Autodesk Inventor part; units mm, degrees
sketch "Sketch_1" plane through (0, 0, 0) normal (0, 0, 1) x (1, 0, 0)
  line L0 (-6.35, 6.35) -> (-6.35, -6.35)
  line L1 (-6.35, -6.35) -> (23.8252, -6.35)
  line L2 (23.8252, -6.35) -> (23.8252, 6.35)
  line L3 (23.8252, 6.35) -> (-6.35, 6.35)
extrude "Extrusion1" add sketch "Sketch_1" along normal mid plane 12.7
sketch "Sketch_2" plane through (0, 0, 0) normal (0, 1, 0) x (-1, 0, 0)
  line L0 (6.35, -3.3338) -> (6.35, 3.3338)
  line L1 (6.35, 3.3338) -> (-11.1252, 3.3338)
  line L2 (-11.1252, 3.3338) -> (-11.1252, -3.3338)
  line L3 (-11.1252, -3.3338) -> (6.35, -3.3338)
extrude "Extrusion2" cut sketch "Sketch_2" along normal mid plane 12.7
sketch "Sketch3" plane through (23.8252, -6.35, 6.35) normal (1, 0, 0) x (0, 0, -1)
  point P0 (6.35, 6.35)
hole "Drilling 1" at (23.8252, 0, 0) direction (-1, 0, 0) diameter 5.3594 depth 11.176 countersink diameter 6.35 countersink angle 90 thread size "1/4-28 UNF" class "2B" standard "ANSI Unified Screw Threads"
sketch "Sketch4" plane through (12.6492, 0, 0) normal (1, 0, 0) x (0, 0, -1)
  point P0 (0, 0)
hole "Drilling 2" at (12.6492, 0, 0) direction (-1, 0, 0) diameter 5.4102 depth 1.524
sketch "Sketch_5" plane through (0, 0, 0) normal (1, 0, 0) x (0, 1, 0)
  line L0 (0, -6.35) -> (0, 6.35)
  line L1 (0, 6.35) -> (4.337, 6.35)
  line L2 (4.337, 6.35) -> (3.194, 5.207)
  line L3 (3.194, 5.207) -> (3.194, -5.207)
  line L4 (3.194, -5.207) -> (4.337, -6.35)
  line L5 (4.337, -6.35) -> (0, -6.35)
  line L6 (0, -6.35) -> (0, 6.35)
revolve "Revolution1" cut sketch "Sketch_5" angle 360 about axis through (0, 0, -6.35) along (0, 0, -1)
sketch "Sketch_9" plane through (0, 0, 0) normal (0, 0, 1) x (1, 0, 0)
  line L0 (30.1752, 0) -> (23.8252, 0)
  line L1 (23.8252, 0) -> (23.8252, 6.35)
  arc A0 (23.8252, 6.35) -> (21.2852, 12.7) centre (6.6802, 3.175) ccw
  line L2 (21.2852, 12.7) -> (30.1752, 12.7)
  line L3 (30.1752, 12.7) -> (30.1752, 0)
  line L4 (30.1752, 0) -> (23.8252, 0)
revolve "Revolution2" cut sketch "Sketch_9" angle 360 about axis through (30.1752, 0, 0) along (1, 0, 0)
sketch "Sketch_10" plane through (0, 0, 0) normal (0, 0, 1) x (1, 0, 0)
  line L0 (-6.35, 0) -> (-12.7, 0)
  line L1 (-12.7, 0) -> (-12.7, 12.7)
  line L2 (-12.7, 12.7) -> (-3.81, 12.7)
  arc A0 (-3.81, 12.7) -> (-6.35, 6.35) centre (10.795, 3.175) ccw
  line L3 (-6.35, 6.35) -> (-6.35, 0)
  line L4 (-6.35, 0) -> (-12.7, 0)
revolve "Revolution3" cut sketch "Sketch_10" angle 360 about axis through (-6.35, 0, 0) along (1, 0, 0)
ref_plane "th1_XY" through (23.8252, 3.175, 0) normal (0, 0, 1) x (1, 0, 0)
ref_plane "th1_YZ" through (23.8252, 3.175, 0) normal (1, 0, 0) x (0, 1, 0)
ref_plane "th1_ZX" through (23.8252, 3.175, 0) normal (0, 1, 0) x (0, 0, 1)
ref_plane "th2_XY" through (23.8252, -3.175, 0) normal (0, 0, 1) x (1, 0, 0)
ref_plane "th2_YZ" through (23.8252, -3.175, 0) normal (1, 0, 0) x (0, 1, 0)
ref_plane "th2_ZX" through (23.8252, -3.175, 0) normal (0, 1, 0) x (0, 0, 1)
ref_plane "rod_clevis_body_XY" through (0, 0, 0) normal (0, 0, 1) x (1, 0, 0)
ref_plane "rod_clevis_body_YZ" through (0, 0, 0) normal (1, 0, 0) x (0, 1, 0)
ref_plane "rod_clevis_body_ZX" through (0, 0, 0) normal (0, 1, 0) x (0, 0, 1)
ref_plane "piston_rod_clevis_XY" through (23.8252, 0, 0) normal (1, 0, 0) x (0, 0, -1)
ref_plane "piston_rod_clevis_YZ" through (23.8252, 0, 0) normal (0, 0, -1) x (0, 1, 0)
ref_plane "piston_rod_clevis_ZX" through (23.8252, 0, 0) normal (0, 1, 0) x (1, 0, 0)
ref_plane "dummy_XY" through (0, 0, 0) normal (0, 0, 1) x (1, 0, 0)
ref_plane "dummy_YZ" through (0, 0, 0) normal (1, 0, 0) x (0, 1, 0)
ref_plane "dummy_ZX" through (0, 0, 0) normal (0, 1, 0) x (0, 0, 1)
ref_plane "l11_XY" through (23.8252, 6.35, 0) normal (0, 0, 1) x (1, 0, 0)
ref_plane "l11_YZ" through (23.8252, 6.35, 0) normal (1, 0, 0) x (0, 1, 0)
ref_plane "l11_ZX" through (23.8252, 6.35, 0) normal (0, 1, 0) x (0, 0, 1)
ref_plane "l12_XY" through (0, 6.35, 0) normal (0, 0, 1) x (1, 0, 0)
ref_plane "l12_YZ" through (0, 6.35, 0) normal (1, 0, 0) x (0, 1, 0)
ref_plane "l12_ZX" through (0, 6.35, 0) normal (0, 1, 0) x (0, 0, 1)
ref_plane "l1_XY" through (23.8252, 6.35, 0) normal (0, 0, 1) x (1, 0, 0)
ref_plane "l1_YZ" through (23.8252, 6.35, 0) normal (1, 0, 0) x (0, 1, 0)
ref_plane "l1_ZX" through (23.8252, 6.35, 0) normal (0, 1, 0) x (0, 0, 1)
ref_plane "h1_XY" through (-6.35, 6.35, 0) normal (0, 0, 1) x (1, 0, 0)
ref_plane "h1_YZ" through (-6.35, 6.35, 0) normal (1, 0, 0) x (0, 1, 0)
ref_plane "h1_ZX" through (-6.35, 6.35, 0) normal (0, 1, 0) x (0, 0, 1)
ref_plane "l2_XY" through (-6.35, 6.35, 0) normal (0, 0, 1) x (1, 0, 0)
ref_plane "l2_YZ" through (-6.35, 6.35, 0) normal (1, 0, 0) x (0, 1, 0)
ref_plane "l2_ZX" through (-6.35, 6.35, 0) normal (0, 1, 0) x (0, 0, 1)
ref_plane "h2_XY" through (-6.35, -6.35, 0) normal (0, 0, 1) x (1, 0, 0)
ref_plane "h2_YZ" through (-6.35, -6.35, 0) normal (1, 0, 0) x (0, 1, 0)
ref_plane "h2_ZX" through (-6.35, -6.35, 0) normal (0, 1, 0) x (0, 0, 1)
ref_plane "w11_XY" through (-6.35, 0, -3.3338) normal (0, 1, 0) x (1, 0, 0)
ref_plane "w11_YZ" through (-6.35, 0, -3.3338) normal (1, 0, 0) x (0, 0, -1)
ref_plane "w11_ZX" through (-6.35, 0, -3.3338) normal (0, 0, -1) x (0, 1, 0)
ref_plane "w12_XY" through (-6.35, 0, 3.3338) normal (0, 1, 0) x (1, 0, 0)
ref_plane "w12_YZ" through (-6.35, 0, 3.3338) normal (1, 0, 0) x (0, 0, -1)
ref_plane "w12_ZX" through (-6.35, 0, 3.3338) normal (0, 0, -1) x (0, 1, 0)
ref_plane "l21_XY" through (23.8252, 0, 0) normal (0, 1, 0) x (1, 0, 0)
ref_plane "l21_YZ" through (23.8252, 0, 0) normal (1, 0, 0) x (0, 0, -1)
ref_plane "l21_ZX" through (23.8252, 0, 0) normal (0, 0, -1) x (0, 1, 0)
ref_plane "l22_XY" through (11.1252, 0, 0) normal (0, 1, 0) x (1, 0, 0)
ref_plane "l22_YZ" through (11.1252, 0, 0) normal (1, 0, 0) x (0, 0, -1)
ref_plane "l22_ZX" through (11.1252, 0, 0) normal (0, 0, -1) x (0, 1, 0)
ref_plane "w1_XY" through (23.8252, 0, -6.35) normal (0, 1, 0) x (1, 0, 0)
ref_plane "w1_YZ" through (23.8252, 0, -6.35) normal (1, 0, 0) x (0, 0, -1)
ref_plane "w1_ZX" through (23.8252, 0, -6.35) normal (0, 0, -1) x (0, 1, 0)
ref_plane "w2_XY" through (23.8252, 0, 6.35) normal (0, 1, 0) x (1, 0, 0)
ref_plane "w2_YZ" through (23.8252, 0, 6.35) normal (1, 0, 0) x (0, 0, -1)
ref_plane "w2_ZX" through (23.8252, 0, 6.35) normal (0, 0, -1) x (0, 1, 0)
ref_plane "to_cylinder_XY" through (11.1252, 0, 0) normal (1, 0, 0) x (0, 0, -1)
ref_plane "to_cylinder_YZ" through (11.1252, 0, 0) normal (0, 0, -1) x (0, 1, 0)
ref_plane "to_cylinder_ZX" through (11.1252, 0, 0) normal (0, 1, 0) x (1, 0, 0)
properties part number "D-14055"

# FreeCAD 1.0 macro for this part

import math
import FreeCAD as App
import Part
import Sketcher
from FreeCAD import Vector
Q = App.Units.Quantity

doc = App.newDocument("Part")
body = doc.addObject("PartDesign::Body", "Body")

# Sketch on XY plane
sketch1 = doc.addObject("Sketcher::SketchObject", "Sketch")
body.addObject(sketch1)
sketch1.AttachmentSupport = (doc.XY_Plane, [""])
sketch1.MapMode = "FlatFace"
sketch1.addGeometry([
    Part.LineSegment(Vector(24, 6, 0), Vector(-6, 6, 0)),
    Part.LineSegment(Vector(-6, 6, 0), Vector(-6, -6, 0)),
    Part.LineSegment(Vector(-6, -6, 0), Vector(24, -6, 0)),
    Part.LineSegment(Vector(24, -6, 0), Vector(24, 6, 0)),
], False)
sketch1.addConstraint([
    Sketcher.Constraint("Coincident", 0, 2, 1, 1),
    Sketcher.Constraint("Coincident", 1, 2, 2, 1),
    Sketcher.Constraint("Coincident", 2, 2, 3, 1),
    Sketcher.Constraint("Coincident", 3, 2, 0, 1),
    Sketcher.Constraint("Horizontal", 0),
    Sketcher.Constraint("Vertical", 1),
    Sketcher.Constraint("Horizontal", 2),
    Sketcher.Constraint("Vertical", 3),
    Sketcher.Constraint("DistanceY", 1, 2, 1, 1, Q("0.5 in")),
    Sketcher.Constraint("DistanceX", 0, 2, 0, 1, Q("1.188 in")),
    Sketcher.Constraint("DistanceX", 0, 2, -1, 1, Q("0.25 in")),
    Sketcher.Constraint("DistanceY", -1, 1, 0, 2, Q("0.25 in")),
])
pad1 = doc.addObject("PartDesign::Pad", "Pad")
body.addObject(pad1)
pad1.Profile = sketch1
pad1.Length = Q("0.5 in")
pad1.Midplane = True

# Sketch on XZ plane
sketch2 = doc.addObject("Sketcher::SketchObject", "Sketch001")
body.addObject(sketch2)
sketch2.AttachmentSupport = (doc.XZ_Plane, [""])
sketch2.MapMode = "FlatFace"
sketch2.addGeometry([
    Part.LineSegment(Vector(11, -3, 0), Vector(-6, -3, 0)),
    Part.LineSegment(Vector(-6, -3, 0), Vector(-6, 3, 0)),
    Part.LineSegment(Vector(-6, 3, 0), Vector(11, 3, 0)),
    Part.LineSegment(Vector(11, 3, 0), Vector(11, -3, 0)),
], False)
sketch2.addConstraint([
    Sketcher.Constraint("Coincident", 0, 2, 1, 1),
    Sketcher.Constraint("Coincident", 1, 2, 2, 1),
    Sketcher.Constraint("Coincident", 2, 2, 3, 1),
    Sketcher.Constraint("Coincident", 3, 2, 0, 1),
    Sketcher.Constraint("Horizontal", 0),
    Sketcher.Constraint("Vertical", 1),
    Sketcher.Constraint("Horizontal", 2),
    Sketcher.Constraint("Vertical", 3),
    Sketcher.Constraint("DistanceX", 0, 2, 0, 1, Q("0.688 in")),
    Sketcher.Constraint("DistanceX", 0, 2, -1, 1, Q("0.25 in")),
    Sketcher.Constraint("DistanceY", 1, 1, 1, 2, Q("0.2625 in")),
    Sketcher.Constraint("DistanceY", 0, 2, -1, 1, 3.3338),
])
pocket1 = doc.addObject("PartDesign::Pocket", "Pocket")
body.addObject(pocket1)
pocket1.Profile = sketch2
pocket1.Length = Q("0.5 in")
pocket1.Midplane = True

# Sketch on YZ plane
sketch3 = doc.addObject("Sketcher::SketchObject", "Sketch002")
body.addObject(sketch3)
sketch3.AttachmentSupport = (doc.YZ_Plane, [""])
sketch3.MapMode = "FlatFace"
sketch3.AttachmentOffset = App.Placement(Vector(0, 0, 0.938 * 25.4), App.Rotation())
sketch3.addGeometry(Part.Circle(Vector(0, 0, 0), Vector(0, 0, 1), 2.7), False)
sketch3.addConstraint([
    Sketcher.Constraint("Coincident", 0, 3, -1, 1),
    Sketcher.Constraint("Diameter", 0, Q("0.211 in")),
])
doc.recompute()
hole = doc.addObject("PartDesign::Hole", "Hole")
body.addObject(hole)
hole.Profile = sketch3
hole.ThreadType = "None"
hole.Diameter = Q("0.211 in")
hole.DepthType = "Dimension"
hole.Depth = Q("0.44 in")
hole.DrillPoint = "Flat"
hole.HoleCutType = "Countersink"
hole.HoleCutDiameter = Q("0.25 in")
hole.HoleCutCountersinkAngle = 90

# Sketch on YZ plane
sketch4 = doc.addObject("Sketcher::SketchObject", "Sketch003")
body.addObject(sketch4)
sketch4.AttachmentSupport = (doc.YZ_Plane, [""])
sketch4.MapMode = "FlatFace"
sketch4.AttachmentOffset = App.Placement(Vector(0, 0, 0.498 * 25.4), App.Rotation())
sketch4.addGeometry(Part.Circle(Vector(0, 0, 0), Vector(0, 0, 1), 2.7), False)
sketch4.addConstraint([
    Sketcher.Constraint("Coincident", 0, 3, -1, 1),
    Sketcher.Constraint("Diameter", 0, Q("0.213 in")),
])
doc.recompute()
hole2 = doc.addObject("PartDesign::Hole", "Hole001")
body.addObject(hole2)
hole2.Profile = sketch4
hole2.ThreadType = "None"
hole2.Diameter = Q("0.213 in")
hole2.DepthType = "Dimension"
hole2.Depth = Q("0.06 in")
hole2.DrillPoint = "Flat"

# Sketch on YZ plane
sketch5 = doc.addObject("Sketcher::SketchObject", "Sketch004")
body.addObject(sketch5)
sketch5.AttachmentSupport = (doc.YZ_Plane, [""])
sketch5.MapMode = "FlatFace"
sketch5.addGeometry([
    Part.LineSegment(Vector(0, 6.3, 0), Vector(0, -6.3, 0)),  # 0
    Part.LineSegment(Vector(0, -6.3, 0), Vector(4.3, -6.3, 0)),  # 1
    Part.LineSegment(Vector(4.3, -6.3, 0), Vector(3.2, -5.2, 0)),  # 2
    Part.LineSegment(Vector(3.2, -5.2, 0), Vector(3.2, 5.2, 0)),  # 3
    Part.LineSegment(Vector(3.2, 5.2, 0), Vector(4.3, 6.3, 0)),  # 4
    Part.LineSegment(Vector(4.3, 6.3, 0), Vector(0, 6.3, 0)),  # 5
], False)
sketch5.addConstraint([
    Sketcher.Constraint("Coincident", 0, 2, 1, 1),
    Sketcher.Constraint("Coincident", 1, 2, 2, 1),
    Sketcher.Constraint("Coincident", 2, 2, 3, 1),
    Sketcher.Constraint("Coincident", 3, 2, 4, 1),
    Sketcher.Constraint("Coincident", 4, 2, 5, 1),
    Sketcher.Constraint("Coincident", 5, 2, 0, 1),
    Sketcher.Constraint("Vertical", 0),
    Sketcher.Constraint("Horizontal", 1),
    Sketcher.Constraint("Vertical", 3),
    Sketcher.Constraint("Horizontal", 5),
    Sketcher.Constraint("Symmetric", 0, 2, 5, 2, -1, 1),
    Sketcher.Constraint("Perpendicular", 2, 4),
    Sketcher.Constraint("Vertical", 1, 2, 4, 2),
    Sketcher.Constraint("Equal", 2, 4),
    Sketcher.Constraint("DistanceY", 0, 2, 0, 1, Q("0.5 in")),
    Sketcher.Constraint("DistanceY", 3, 1, 3, 2, Q("0.41 in")),
    Sketcher.Constraint("DistanceX", 1, 1, 1, 2, 4.337),
])
groove = doc.addObject("PartDesign::Groove", "Groove")
body.addObject(groove)
groove.Profile = sketch5
groove.ReferenceAxis = (sketch5, ["V_Axis"])
groove.Angle = 360

# Sketch on XY plane
sketch6 = doc.addObject("Sketcher::SketchObject", "Sketch005")
body.addObject(sketch6)
sketch6.AttachmentSupport = (doc.XY_Plane, [""])
sketch6.MapMode = "FlatFace"
sketch6.addGeometry([
    Part.LineSegment(Vector(24, 0, 0), Vector(30, 0, 0)),  # 0
    Part.LineSegment(Vector(30, 0, 0), Vector(30, 13, 0)),  # 1
    Part.LineSegment(Vector(30, 13, 0), Vector(21, 13, 0)),  # 2
    Part.ArcOfCircle(Part.Circle(Vector(7, 3, 0), Vector(0, 0, 1), 17), math.radians(10), math.radians(33)),  # 3
    Part.LineSegment(Vector(24, 6, 0), Vector(24, 0, 0)),  # 4
], False)
sketch6.addConstraint([
    Sketcher.Constraint("Coincident", 0, 2, 1, 1),
    Sketcher.Constraint("Coincident", 1, 2, 2, 1),
    Sketcher.Constraint("Coincident", 2, 2, 3, 2),
    Sketcher.Constraint("Coincident", 3, 1, 4, 1),
    Sketcher.Constraint("Coincident", 4, 2, 0, 1),
    Sketcher.Constraint("Horizontal", 0),
    Sketcher.Constraint("Vertical", 1),
    Sketcher.Constraint("Horizontal", 2),
    Sketcher.Constraint("Vertical", 4),
    Sketcher.Constraint("PointOnObject", 0, 2, -1),
    Sketcher.Constraint("Equal", 0, 4),
    Sketcher.Constraint("DistanceY", 1, 1, 1, 2, Q("0.5 in")),
    Sketcher.Constraint("DistanceX", 0, 1, 0, 2, Q("0.25 in")),
    Sketcher.Constraint("DistanceX", 2, 2, 2, 1, Q("0.35 in")),
    Sketcher.Constraint("Radius", 3, 17.4365),
    Sketcher.Constraint("DistanceX", -1, 1, 3, 3, Q("0.263 in")),
])
groove2 = doc.addObject("PartDesign::Groove", "Groove001")
body.addObject(groove2)
groove2.Profile = sketch6
groove2.ReferenceAxis = (sketch6, ["H_Axis"])
groove2.Angle = 360

# Sketch on XY plane
sketch7 = doc.addObject("Sketcher::SketchObject", "Sketch006")
body.addObject(sketch7)
sketch7.AttachmentSupport = (doc.XY_Plane, [""])
sketch7.MapMode = "FlatFace"
sketch7.addGeometry([
    Part.LineSegment(Vector(-13, 0, 0), Vector(-6, 0, 0)),  # 0
    Part.LineSegment(Vector(-6, 0, 0), Vector(-6, 6, 0)),  # 1
    Part.ArcOfCircle(Part.Circle(Vector(11, 3, 0), Vector(0, 0, 1), 17), math.radians(147), math.radians(170)),  # 2
    Part.LineSegment(Vector(-4, 13, 0), Vector(-13, 13, 0)),  # 3
    Part.LineSegment(Vector(-13, 13, 0), Vector(-13, 0, 0)),  # 4
], False)
sketch7.addConstraint([
    Sketcher.Constraint("Coincident", 0, 2, 1, 1),
    Sketcher.Constraint("Coincident", 1, 2, 2, 2),
    Sketcher.Constraint("Coincident", 2, 1, 3, 1),
    Sketcher.Constraint("Coincident", 3, 2, 4, 1),
    Sketcher.Constraint("Coincident", 4, 2, 0, 1),
    Sketcher.Constraint("Horizontal", 0),
    Sketcher.Constraint("Vertical", 1),
    Sketcher.Constraint("Horizontal", 3),
    Sketcher.Constraint("Vertical", 4),
    Sketcher.Constraint("PointOnObject", 0, 2, -1),
    Sketcher.Constraint("Equal", 0, 1),
    Sketcher.Constraint("DistanceY", 4, 2, 4, 1, Q("0.5 in")),
    Sketcher.Constraint("DistanceX", 0, 1, 0, 2, Q("0.25 in")),
    Sketcher.Constraint("DistanceX", 3, 2, 3, 1, Q("0.35 in")),
    Sketcher.Constraint("DistanceX", 3, 2, -1, 1, Q("0.5 in")),
    Sketcher.Constraint("Radius", 2, 17.4365),
])
groove3 = doc.addObject("PartDesign::Groove", "Groove002")
body.addObject(groove3)
groove3.Profile = sketch7
groove3.ReferenceAxis = (sketch7, ["H_Axis"])
groove3.Angle = 360

doc.recompute()
